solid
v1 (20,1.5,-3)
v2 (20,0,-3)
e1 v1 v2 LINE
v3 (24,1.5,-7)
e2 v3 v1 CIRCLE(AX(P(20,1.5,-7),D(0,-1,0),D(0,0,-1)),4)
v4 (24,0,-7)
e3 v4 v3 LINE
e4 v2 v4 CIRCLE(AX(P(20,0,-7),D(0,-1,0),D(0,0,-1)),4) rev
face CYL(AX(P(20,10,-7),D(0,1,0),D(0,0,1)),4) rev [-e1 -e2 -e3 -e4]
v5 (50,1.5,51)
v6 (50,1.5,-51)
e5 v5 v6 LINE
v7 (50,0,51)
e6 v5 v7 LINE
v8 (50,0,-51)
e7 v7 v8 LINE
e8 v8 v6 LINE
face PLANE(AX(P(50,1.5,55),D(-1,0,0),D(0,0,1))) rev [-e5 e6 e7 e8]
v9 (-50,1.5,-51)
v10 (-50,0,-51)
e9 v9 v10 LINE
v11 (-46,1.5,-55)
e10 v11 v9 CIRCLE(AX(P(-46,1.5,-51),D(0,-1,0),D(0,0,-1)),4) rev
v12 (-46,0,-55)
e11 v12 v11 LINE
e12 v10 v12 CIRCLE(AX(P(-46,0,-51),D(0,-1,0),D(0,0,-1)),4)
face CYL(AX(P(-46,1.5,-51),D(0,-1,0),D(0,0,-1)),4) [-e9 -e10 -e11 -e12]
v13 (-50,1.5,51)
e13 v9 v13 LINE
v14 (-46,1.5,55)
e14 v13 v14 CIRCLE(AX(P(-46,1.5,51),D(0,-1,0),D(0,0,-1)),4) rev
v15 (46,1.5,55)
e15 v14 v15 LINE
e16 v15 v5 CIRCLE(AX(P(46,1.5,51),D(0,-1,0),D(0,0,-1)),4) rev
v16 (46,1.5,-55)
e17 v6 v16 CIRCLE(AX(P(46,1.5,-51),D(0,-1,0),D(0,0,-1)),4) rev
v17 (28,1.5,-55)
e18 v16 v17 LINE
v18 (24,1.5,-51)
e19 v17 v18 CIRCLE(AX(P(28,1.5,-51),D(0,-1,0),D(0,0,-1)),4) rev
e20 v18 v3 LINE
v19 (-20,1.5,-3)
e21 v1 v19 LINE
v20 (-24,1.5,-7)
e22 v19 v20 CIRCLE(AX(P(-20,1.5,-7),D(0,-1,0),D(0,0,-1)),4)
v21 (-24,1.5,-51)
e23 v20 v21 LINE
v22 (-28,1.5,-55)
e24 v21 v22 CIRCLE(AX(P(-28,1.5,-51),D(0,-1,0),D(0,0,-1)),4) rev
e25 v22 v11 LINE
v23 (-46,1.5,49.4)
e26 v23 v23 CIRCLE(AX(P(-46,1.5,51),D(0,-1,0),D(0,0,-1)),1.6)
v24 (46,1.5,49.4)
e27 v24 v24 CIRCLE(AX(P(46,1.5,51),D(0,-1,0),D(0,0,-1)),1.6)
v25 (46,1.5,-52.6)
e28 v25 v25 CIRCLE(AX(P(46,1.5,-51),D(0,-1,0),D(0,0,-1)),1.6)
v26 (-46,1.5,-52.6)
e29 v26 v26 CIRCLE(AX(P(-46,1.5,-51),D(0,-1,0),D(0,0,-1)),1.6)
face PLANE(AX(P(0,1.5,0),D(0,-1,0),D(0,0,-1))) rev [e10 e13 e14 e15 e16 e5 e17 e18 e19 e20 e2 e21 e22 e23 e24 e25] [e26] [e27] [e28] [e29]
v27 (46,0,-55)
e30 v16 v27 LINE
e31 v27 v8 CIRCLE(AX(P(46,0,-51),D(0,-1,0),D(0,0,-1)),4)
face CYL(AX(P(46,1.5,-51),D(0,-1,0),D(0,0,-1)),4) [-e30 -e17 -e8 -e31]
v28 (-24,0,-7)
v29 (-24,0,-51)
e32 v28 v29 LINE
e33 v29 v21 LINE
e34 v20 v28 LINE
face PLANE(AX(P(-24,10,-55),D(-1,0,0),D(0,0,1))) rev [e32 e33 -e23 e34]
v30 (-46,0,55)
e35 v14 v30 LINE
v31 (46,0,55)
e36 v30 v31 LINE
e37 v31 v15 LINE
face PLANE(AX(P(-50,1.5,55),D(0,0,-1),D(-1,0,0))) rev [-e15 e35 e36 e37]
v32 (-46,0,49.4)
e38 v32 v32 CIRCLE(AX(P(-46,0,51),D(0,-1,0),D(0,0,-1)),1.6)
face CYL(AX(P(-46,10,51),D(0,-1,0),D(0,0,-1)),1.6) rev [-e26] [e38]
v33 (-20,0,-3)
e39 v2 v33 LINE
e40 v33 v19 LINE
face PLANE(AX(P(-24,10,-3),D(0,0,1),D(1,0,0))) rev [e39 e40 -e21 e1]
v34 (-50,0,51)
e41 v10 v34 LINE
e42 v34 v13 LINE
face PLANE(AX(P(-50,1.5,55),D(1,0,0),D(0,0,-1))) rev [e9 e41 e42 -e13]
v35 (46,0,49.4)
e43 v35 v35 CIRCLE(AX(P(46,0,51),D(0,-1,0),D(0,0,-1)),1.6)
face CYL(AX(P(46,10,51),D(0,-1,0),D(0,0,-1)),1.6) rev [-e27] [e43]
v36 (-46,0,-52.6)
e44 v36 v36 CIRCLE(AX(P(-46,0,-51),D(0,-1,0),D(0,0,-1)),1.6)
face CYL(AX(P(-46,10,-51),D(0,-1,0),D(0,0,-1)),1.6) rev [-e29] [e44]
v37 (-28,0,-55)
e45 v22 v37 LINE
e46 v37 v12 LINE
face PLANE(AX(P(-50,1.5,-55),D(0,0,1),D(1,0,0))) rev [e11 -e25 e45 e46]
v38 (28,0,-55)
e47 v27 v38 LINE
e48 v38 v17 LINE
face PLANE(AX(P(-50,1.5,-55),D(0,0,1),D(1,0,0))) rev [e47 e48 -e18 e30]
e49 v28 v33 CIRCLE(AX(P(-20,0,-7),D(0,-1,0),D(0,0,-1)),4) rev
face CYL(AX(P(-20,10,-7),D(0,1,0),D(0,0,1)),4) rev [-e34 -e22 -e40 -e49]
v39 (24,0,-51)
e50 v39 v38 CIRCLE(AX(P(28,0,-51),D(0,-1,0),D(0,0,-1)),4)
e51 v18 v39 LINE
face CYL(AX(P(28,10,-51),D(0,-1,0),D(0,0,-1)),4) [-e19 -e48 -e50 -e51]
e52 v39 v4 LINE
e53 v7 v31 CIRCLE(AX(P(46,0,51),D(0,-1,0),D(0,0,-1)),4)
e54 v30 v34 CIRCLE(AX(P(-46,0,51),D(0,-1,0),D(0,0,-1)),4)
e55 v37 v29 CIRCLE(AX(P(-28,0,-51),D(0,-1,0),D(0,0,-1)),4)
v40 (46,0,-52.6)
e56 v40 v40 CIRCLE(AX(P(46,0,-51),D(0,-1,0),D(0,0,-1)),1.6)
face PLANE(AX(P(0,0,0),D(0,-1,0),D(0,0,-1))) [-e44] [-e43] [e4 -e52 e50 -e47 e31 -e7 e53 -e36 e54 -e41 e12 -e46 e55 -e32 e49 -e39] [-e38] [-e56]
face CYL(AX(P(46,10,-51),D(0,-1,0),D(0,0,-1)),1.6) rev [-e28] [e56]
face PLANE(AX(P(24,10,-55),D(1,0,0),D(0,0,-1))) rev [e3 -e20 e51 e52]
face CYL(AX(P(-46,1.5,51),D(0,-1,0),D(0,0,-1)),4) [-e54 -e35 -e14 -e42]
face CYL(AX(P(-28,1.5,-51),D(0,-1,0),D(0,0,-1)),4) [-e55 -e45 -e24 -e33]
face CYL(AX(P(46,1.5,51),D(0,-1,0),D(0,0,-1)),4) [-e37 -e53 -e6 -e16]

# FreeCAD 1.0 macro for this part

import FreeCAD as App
import Part
import Sketcher
from FreeCAD import Vector
Q = App.Units.Quantity


def edges_at(feature, points):
    """Names of the edges that pass closest to the given points."""
    edges = feature.Shape.Edges
    near = lambda p: min(range(len(edges)), key=lambda i: edges[i].distToShape(Part.Vertex(*p))[0])
    return sorted({f"Edge{near(p) + 1}" for p in points})


def add_polygon(sketch, points):
    """Adds a closed chain of lines whose ends are joined by coincident constraints."""
    first, n = sketch.GeometryCount, len(points)
    for a, b in zip(points, points[1:] + points[:1]):
        sketch.addGeometry(Part.LineSegment(App.Vector(*a, 0), App.Vector(*b, 0)), False)
    for i in range(n):
        sketch.addConstraint(Sketcher.Constraint("Coincident", first + i, 2, first + (i + 1) % n, 1))

doc = App.newDocument("Part")
params = doc.addObject("Spreadsheet::Sheet", "Params")
for row, (alias, value) in enumerate([
    ("sketch1_width", "100 mm"),
    ("sketch1_height", "110 mm"),
    ("pad1_length", "1.5 mm"),
    ("sketch2_width", "48 mm"),
    ("sketch2_height", "52 mm"),
    ("pocket1_length", "10 mm"),
    ("fillet_radius", "4 mm"),
    ("sketch3_diameter", "3.2 mm"),
    ("pocket2_length", "10 mm"),
], start=1):
    params.set(f"A{row}", alias)
    params.set(f"B{row}", "=" + value)
    params.setAlias(f"B{row}", alias)

body = doc.addObject("PartDesign::Body", "Body")

# Sketch on XZ plane
sketch1 = body.newObject("Sketcher::SketchObject", "Sketch")
sketch1.AttachmentSupport = (doc.getObject("XZ_Plane"), [""])
sketch1.MapMode = "FlatFace"
add_polygon(sketch1, [(-50, -55), (-50, 55), (50, 55), (50, -55)])  # lines 0-3
sketch1.addConstraint([
    Sketcher.Constraint("Vertical", 0),
    Sketcher.Constraint("Horizontal", 1),
    Sketcher.Constraint("Vertical", 2),
    Sketcher.Constraint("Horizontal", 3),
    Sketcher.Constraint("Symmetric", 0, 2, 2, 2, -1, 1),
    Sketcher.Constraint("DistanceX", 1, 1, 1, 2, Q("100 mm")),
    Sketcher.Constraint("DistanceY", 0, 1, 0, 2, Q("110 mm")),
])
sketch1.setExpression("Constraints[9]", "Params.sketch1_width")
sketch1.setExpression("Constraints[10]", "Params.sketch1_height")
pad1 = body.newObject("PartDesign::Pad", "Pad")
pad1.Profile = sketch1
pad1.setExpression("Length", "Params.pad1_length")
pad1.Reversed = True

# Sketch on XZ plane
sketch2 = body.newObject("Sketcher::SketchObject", "Sketch001")
sketch2.AttachmentSupport = (doc.getObject("XZ_Plane"), [""])
sketch2.MapMode = "FlatFace"
add_polygon(sketch2, [(24, -55), (24, -3), (-24, -3), (-24, -55)])  # lines 0-3
sketch2.addConstraint([
    Sketcher.Constraint("Vertical", 0),
    Sketcher.Constraint("Horizontal", 1),
    Sketcher.Constraint("Vertical", 2),
    Sketcher.Constraint("Horizontal", 3),
    Sketcher.Constraint("DistanceX", 1, 2, 1, 1, Q("48 mm")),
    Sketcher.Constraint("DistanceY", 0, 1, 0, 2, Q("52 mm")),
    Sketcher.Constraint("DistanceX", -1, 1, 0, 2, Q("24 mm")),
    Sketcher.Constraint("DistanceY", 0, 2, -1, 1, Q("3 mm")),
])
sketch2.setExpression("Constraints[8]", "Params.sketch2_width")
sketch2.setExpression("Constraints[9]", "Params.sketch2_height")
pocket1 = body.newObject("PartDesign::Pocket", "Pocket")
pocket1.Profile = sketch2
pocket1.setExpression("Length", "Params.pocket1_length")
doc.recompute()

fillet = body.newObject("PartDesign::Fillet", "Fillet")
fillet.Base = (pocket1, edges_at(pocket1, [
    (-24, 0.75, -55),
    (-24, 0.75, -3),
    (24, 0.75, -3),
    (24, 0.75, -55),
    (50, 0.75, 55),
    (-50, 0.75, 55),
    (-50, 0.75, -55),
    (50, 0.75, -55),
]))
fillet.setExpression("Radius", "Params.fillet_radius")

# Sketch on XZ plane
sketch3 = body.newObject("Sketcher::SketchObject", "Sketch002")
sketch3.AttachmentSupport = (doc.getObject("XZ_Plane"), [""])
sketch3.MapMode = "FlatFace"
sketch3.addGeometry([
    Part.Circle(Vector(-46, 51, 0), Vector(0, 0, 1), 1.6),
    Part.Circle(Vector(-46, -51, 0), Vector(0, 0, 1), 1.6),
    Part.Circle(Vector(46, -51, 0), Vector(0, 0, 1), 1.6),
    Part.Circle(Vector(46, 51, 0), Vector(0, 0, 1), 1.6),
], False)
sketch3.addConstraint([
    Sketcher.Constraint("Equal", 0, 1),
    Sketcher.Constraint("Equal", 1, 2),
    Sketcher.Constraint("Equal", 2, 3),
    Sketcher.Constraint("Symmetric", 0, 3, 2, 3, -1, 1),
    Sketcher.Constraint("Symmetric", 1, 3, 3, 3, -1, 1),
    Sketcher.Constraint("Symmetric", 1, 3, 2, 3, -2),
    Sketcher.Constraint("Diameter", 0, Q("3.2 mm")),
    Sketcher.Constraint("DistanceX", 0, 3, -1, 1, Q("46 mm")),
    Sketcher.Constraint("DistanceY", -1, 1, 0, 3, Q("51 mm")),
])
sketch3.setExpression("Constraints[6]", "Params.sketch3_diameter")
pocket2 = body.newObject("PartDesign::Pocket", "Pocket001")
pocket2.Profile = sketch3
pocket2.setExpression("Length", "Params.pocket2_length")

doc.recompute()
